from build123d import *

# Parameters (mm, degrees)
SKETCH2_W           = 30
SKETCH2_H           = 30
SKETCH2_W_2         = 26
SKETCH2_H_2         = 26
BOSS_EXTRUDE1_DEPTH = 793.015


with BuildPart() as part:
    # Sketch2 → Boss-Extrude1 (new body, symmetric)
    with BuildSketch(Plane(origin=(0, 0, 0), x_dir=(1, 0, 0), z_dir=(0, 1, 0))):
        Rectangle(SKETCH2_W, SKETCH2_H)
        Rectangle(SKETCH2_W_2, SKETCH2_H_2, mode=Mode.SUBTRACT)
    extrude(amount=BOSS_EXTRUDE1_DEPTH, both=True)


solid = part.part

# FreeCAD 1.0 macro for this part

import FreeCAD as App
import Part
import Sketcher
Q = App.Units.Quantity


def add_polygon(sketch, points):
    """Adds a closed chain of lines whose ends are joined by coincident constraints."""
    first, n = sketch.GeometryCount, len(points)
    for a, b in zip(points, points[1:] + points[:1]):
        sketch.addGeometry(Part.LineSegment(App.Vector(*a, 0), App.Vector(*b, 0)), False)
    for i in range(n):
        sketch.addConstraint(Sketcher.Constraint("Coincident", first + i, 2, first + (i + 1) % n, 1))

doc = App.newDocument("Part")
body = doc.addObject("PartDesign::Body", "Body")

# Sketch on XZ plane
sketch1 = doc.addObject("Sketcher::SketchObject", "Sketch")
body.addObject(sketch1)
sketch1.AttachmentSupport = (doc.XZ_Plane, [""])
sketch1.MapMode = "FlatFace"
add_polygon(sketch1, [(-15, -15), (-15, 15), (15, 15), (15, -15)])  # lines 0-3
add_polygon(sketch1, [(13, 13), (-13, 13), (-13, -13), (13, -13)])  # lines 4-7
sketch1.addConstraint([
    Sketcher.Constraint("Vertical", 0),
    Sketcher.Constraint("Horizontal", 1),
    Sketcher.Constraint("Vertical", 2),
    Sketcher.Constraint("Horizontal", 3),
    Sketcher.Constraint("Horizontal", 4),
    Sketcher.Constraint("Vertical", 5),
    Sketcher.Constraint("Horizontal", 6),
    Sketcher.Constraint("Vertical", 7),
    Sketcher.Constraint("Symmetric", 0, 2, 2, 2, -1, 1),
    Sketcher.Constraint("Symmetric", 4, 2, 6, 2, -1, 1),
    Sketcher.Constraint("Equal", 3, 0),
    Sketcher.Constraint("Equal", 6, 5),
    Sketcher.Constraint("DistanceX", 1, 1, 1, 2, Q("30 mm")),
    Sketcher.Constraint("DistanceX", 4, 2, 4, 1, Q("26 mm")),
])
pad1 = doc.addObject("PartDesign::Pad", "Pad")
body.addObject(pad1)
pad1.Profile = sketch1
pad1.Length = 1586.03
pad1.Midplane = True

doc.recompute()
